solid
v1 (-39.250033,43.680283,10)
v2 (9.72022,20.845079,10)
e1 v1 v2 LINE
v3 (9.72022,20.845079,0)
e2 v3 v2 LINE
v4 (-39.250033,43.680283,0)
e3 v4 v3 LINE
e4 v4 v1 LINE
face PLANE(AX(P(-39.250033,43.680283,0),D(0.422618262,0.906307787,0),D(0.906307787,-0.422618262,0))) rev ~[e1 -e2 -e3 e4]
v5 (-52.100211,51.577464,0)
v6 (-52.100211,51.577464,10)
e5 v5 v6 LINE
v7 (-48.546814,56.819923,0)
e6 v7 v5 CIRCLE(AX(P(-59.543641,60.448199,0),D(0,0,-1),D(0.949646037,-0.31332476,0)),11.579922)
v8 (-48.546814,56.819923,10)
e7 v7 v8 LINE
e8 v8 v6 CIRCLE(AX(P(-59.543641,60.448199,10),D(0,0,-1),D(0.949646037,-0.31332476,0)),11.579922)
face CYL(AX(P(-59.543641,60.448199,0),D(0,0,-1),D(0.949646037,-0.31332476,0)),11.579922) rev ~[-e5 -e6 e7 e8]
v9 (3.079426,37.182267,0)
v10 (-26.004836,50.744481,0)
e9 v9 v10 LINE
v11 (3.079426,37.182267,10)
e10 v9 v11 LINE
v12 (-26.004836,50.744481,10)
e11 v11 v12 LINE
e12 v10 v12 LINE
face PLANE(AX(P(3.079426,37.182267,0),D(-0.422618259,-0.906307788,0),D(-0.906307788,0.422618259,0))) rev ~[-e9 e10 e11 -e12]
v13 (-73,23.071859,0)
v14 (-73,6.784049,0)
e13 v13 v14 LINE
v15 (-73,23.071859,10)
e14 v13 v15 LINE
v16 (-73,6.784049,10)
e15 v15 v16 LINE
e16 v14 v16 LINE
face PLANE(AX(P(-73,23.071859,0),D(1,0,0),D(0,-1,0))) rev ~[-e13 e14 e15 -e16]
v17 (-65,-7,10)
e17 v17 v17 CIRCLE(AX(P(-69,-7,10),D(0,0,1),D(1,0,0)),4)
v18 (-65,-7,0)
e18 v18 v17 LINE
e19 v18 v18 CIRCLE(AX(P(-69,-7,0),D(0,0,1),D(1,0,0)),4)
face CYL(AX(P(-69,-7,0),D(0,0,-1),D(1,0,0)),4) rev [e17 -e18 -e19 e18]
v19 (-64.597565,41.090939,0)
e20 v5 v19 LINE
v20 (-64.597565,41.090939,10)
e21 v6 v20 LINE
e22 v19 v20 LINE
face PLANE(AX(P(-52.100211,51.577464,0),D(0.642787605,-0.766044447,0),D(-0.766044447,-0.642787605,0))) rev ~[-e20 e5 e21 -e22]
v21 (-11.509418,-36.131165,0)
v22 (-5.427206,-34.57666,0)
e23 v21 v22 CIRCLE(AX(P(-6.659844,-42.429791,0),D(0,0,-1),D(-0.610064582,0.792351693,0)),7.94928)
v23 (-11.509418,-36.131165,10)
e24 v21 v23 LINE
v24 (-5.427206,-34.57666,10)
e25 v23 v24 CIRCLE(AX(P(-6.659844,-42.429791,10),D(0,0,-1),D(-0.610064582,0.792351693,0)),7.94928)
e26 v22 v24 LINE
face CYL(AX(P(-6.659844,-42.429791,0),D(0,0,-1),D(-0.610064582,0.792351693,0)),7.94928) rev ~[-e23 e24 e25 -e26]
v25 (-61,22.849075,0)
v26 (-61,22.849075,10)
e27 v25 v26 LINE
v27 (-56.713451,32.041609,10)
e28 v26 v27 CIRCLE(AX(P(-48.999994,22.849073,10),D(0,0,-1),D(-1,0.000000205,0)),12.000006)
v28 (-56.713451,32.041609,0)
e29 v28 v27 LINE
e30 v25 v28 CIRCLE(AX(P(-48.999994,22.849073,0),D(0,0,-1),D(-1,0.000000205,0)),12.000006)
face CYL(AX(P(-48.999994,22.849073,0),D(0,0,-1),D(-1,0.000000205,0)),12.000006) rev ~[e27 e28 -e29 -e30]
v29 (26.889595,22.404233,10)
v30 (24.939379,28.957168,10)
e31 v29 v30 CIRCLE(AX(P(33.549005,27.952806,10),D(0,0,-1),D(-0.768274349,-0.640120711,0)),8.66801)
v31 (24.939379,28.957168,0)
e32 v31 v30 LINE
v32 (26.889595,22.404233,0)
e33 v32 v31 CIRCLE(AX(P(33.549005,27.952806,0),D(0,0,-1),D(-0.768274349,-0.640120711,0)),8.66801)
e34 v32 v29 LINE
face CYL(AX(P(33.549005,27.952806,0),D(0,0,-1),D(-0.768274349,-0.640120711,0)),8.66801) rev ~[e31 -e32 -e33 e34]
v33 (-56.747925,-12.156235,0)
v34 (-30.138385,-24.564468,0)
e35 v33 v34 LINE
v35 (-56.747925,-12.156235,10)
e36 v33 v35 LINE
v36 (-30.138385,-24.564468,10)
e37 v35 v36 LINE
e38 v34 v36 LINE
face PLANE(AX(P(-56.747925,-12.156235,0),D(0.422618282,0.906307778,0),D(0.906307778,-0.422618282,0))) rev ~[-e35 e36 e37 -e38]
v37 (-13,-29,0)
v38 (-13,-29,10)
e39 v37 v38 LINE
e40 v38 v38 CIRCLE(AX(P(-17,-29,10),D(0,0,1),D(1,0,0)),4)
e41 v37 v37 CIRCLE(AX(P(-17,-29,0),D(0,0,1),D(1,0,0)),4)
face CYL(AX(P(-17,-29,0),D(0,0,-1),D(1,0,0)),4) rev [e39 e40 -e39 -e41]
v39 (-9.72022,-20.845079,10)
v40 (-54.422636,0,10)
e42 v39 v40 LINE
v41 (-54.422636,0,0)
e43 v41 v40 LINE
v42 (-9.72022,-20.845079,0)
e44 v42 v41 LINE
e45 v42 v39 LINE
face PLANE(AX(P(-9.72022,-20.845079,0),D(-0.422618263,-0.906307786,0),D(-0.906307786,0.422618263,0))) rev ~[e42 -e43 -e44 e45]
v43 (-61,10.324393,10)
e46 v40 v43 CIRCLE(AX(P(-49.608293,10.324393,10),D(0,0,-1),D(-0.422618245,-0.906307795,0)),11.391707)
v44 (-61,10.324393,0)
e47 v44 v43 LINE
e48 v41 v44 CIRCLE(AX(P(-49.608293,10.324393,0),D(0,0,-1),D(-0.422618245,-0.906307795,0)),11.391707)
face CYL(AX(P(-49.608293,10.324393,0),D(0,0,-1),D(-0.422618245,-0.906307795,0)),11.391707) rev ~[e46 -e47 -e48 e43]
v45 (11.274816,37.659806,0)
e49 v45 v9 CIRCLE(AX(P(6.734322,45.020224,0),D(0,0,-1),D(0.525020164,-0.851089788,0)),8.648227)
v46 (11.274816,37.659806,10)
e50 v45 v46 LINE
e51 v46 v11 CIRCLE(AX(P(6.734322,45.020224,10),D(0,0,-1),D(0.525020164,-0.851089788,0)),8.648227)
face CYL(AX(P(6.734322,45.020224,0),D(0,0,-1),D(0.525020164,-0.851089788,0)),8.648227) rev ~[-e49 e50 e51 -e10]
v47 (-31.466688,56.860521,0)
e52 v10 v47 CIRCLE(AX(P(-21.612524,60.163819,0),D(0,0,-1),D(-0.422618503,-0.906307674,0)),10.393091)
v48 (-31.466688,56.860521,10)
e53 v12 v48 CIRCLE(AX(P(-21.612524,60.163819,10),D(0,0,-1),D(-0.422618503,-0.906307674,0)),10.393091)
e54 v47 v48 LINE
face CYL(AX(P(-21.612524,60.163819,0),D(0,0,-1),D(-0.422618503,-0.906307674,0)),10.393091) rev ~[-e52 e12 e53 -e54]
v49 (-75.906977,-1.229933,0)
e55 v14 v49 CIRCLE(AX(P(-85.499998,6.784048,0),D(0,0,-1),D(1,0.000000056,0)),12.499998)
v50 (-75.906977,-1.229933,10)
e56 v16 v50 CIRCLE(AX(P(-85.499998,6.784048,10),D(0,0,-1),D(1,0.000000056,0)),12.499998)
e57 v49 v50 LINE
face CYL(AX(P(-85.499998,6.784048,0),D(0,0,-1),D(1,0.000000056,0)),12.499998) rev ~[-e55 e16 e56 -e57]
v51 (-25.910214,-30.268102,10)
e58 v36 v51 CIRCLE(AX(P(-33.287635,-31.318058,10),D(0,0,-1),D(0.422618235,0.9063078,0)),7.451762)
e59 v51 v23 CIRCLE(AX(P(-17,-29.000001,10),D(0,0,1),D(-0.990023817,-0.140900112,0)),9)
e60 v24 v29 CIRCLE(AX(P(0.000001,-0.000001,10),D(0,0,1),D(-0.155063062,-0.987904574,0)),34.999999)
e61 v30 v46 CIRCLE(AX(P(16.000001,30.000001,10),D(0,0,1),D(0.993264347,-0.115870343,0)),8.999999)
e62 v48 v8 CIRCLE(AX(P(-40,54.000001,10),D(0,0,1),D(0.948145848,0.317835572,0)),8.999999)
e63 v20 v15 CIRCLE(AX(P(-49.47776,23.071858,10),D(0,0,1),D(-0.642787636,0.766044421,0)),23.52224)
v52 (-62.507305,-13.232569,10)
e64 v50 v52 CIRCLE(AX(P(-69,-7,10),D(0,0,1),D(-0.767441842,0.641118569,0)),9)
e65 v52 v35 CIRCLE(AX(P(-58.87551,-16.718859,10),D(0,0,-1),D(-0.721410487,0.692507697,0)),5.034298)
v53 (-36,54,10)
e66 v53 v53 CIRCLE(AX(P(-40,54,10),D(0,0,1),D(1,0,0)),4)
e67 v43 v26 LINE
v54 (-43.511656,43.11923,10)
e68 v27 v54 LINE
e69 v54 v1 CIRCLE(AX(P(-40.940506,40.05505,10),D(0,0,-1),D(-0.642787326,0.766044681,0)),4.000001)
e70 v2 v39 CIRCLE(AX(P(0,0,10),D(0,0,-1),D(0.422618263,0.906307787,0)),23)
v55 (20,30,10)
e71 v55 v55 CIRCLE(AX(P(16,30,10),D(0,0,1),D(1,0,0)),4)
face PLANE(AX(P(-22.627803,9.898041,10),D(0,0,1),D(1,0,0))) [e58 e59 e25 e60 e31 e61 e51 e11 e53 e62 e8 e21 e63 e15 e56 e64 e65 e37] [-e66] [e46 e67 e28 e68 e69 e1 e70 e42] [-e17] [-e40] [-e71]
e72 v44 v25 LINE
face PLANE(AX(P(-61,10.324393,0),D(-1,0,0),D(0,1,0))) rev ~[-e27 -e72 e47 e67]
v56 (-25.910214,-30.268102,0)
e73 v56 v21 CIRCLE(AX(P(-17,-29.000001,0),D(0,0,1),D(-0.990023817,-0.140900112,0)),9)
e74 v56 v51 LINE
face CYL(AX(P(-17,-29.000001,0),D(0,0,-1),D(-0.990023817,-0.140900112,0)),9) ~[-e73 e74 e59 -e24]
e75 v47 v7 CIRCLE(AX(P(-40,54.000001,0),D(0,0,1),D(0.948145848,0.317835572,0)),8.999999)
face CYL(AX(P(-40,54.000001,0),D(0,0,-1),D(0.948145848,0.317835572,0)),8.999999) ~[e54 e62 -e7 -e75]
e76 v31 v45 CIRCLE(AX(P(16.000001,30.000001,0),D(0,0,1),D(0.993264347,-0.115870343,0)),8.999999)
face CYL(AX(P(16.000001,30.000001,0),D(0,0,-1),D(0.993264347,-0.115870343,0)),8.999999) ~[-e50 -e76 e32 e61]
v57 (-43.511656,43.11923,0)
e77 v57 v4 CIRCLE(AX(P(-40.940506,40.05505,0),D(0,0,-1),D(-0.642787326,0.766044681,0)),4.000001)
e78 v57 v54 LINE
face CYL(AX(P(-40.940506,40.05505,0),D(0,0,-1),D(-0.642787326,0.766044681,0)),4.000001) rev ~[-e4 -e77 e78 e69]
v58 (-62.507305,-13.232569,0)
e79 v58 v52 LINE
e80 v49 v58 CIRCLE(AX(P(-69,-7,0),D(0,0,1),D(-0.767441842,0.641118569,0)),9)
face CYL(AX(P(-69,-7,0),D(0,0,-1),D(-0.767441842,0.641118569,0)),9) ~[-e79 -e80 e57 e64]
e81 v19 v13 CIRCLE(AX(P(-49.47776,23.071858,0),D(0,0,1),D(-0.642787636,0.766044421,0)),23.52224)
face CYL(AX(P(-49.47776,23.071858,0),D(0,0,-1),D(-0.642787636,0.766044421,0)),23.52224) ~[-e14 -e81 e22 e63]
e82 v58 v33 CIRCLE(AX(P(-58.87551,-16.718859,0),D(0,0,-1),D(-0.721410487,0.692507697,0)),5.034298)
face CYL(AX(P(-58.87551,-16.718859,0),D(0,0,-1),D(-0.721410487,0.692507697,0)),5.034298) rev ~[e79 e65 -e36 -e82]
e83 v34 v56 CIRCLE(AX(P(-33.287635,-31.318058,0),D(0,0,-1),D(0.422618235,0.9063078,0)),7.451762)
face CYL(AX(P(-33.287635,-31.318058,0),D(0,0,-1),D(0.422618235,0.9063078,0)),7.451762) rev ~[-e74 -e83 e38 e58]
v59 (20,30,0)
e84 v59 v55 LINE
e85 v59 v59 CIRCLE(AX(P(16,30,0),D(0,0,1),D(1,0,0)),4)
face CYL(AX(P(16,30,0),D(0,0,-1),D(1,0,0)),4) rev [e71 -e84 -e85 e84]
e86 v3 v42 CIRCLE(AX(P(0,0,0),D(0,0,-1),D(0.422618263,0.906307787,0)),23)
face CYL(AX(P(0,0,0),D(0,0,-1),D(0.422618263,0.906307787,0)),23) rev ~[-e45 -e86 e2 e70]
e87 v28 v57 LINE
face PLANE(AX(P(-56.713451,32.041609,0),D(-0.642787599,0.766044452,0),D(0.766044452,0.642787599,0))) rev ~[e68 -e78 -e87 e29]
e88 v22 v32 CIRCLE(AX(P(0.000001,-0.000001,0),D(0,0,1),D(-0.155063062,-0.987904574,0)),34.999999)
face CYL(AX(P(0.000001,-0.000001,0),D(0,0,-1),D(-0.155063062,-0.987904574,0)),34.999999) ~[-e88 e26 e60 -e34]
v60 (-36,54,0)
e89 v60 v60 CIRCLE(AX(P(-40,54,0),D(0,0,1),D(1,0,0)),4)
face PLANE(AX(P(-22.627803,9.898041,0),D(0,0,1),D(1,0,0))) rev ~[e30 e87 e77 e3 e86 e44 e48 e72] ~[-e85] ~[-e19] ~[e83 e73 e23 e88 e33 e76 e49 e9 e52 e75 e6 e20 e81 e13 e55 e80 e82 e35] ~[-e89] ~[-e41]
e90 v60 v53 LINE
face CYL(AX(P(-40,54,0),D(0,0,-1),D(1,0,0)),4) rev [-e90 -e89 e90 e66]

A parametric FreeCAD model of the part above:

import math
import FreeCAD as App
import Part
import Sketcher
Q = App.Units.Quantity

doc = App.newDocument("Part")
params = doc.addObject("Spreadsheet::Sheet", "Params")
for row, (alias, value) in enumerate([
    ("sketch1_diameter", "8 mm"),
    ("sketch1_radius", "8.999999 mm"),
    ("sketch1_radius2", "34.999999 mm"),
    ("sketch1_radius3", "23 mm"),
    ("pad1_length", "10 mm"),
], start=1):
    params.set(f"A{row}", alias)
    params.set(f"B{row}", "=" + value)
    params.setAlias(f"B{row}", alias)

body = doc.addObject("PartDesign::Body", "Body")

# Sketch on XY plane
sketch1 = body.newObject("Sketcher::SketchObject", "Sketch")
sketch1.AttachmentSupport = (doc.getObject("XY_Plane"), [""])
sketch1.MapMode = "FlatFace"
sketch1.addGeometry(Part.ArcOfCircle(Part.Circle(App.Vector(-21.6, 60.2, 0), App.Vector(0, 0, 1), 10.4), math.radians(-161), math.radians(-115)), False)
sketch1.addGeometry(Part.ArcOfCircle(Part.Circle(App.Vector(-40, 54, 0), App.Vector(0, 0, 1), 9), math.radians(19), math.radians(162)), False)
sketch1.addGeometry(Part.ArcOfCircle(Part.Circle(App.Vector(-59.5, 60.4, 0), App.Vector(0, 0, 1), 11.6), math.radians(-50), math.radians(-18)), False)
sketch1.addGeometry(Part.LineSegment(App.Vector(-52.1, 51.6, 0), App.Vector(-64.6, 41.1, 0)), False)
sketch1.addGeometry(Part.ArcOfCircle(Part.Circle(App.Vector(-49.5, 23.1, 0), App.Vector(0, 0, 1), 23.5), math.radians(130), math.radians(180)), False)
sketch1.addGeometry(Part.LineSegment(App.Vector(-73, 23.1, 0), App.Vector(-73, 6.8, 0)), False)
sketch1.addGeometry(Part.ArcOfCircle(Part.Circle(App.Vector(-85.5, 6.8, 0), App.Vector(0, 0, 1), 12.5), math.radians(-40), math.radians(0)), False)
sketch1.addGeometry(Part.ArcOfCircle(Part.Circle(App.Vector(-69, -7, 0), App.Vector(0, 0, 1), 9), math.radians(140), math.radians(316)), False)
sketch1.addGeometry(Part.ArcOfCircle(Part.Circle(App.Vector(-58.9, -16.7, 0), App.Vector(0, 0, 1), 5), math.radians(65), math.radians(136)), False)
sketch1.addGeometry(Part.LineSegment(App.Vector(-56.7, -12.2, 0), App.Vector(-30.1, -24.6, 0)), False)
sketch1.addGeometry(Part.ArcOfCircle(Part.Circle(App.Vector(-33.3, -31.3, 0), App.Vector(0, 0, 1), 7.5), math.radians(8), math.radians(65)), False)
sketch1.addGeometry(Part.ArcOfCircle(Part.Circle(App.Vector(-17, -29, 0), App.Vector(0, 0, 1), 9), math.radians(-172), math.radians(-52)), False)
sketch1.addGeometry(Part.ArcOfCircle(Part.Circle(App.Vector(-6.7, -42.4, 0), App.Vector(0, 0, 1), 7.9), math.radians(81), math.radians(128)), False)
sketch1.addGeometry(Part.ArcOfCircle(Part.Circle(App.Vector(0, 0, 0), App.Vector(0, 0, 1), 35), math.radians(-99), math.radians(40)), False)
sketch1.addGeometry(Part.ArcOfCircle(Part.Circle(App.Vector(33.5, 28, 0), App.Vector(0, 0, 1), 8.7), math.radians(173), math.radians(220)), False)
sketch1.addGeometry(Part.ArcOfCircle(Part.Circle(App.Vector(16, 30, 0), App.Vector(0, 0, 1), 9), math.radians(-7), math.radians(122)), False)
sketch1.addGeometry(Part.ArcOfCircle(Part.Circle(App.Vector(6.7, 45, 0), App.Vector(0, 0, 1), 8.6), math.radians(-115), math.radians(-58)), False)
sketch1.addGeometry(Part.LineSegment(App.Vector(3.1, 37.2, 0), App.Vector(-26, 50.7, 0)), False)
sketch1.addGeometry(Part.Circle(App.Vector(-69, -7, 0), App.Vector(0, 0, 1), 4), False)
sketch1.addGeometry(Part.Circle(App.Vector(-17, -29, 0), App.Vector(0, 0, 1), 4), False)
sketch1.addGeometry(Part.LineSegment(App.Vector(-39.3, 43.7, 0), App.Vector(9.7, 20.8, 0)), False)
sketch1.addGeometry(Part.ArcOfCircle(Part.Circle(App.Vector(0, 0, 0), App.Vector(0, 0, 1), 23), math.radians(-115), math.radians(65)), False)
sketch1.addGeometry(Part.LineSegment(App.Vector(-9.7, -20.8, 0), App.Vector(-54.4, 0, 0)), False)
sketch1.addGeometry(Part.ArcOfCircle(Part.Circle(App.Vector(-49.6, 10.3, 0), App.Vector(0, 0, 1), 11.4), math.radians(-180), math.radians(-115)), False)
sketch1.addGeometry(Part.LineSegment(App.Vector(-61, 10.3, 0), App.Vector(-61, 22.8, 0)), False)
sketch1.addGeometry(Part.ArcOfCircle(Part.Circle(App.Vector(-49, 22.8, 0), App.Vector(0, 0, 1), 12), math.radians(130), math.radians(180)), False)
sketch1.addGeometry(Part.LineSegment(App.Vector(-56.7, 32, 0), App.Vector(-43.5, 43.1, 0)), False)
sketch1.addGeometry(Part.ArcOfCircle(Part.Circle(App.Vector(-40.9, 40.1, 0), App.Vector(0, 0, 1), 4), math.radians(65), math.radians(130)), False)
sketch1.addGeometry(Part.Circle(App.Vector(-40, 54, 0), App.Vector(0, 0, 1), 4), False)
sketch1.addGeometry(Part.Circle(App.Vector(16, 30, 0), App.Vector(0, 0, 1), 4), False)
sketch1.addConstraint(Sketcher.Constraint("Tangent", 0, 1, 1, 1))
sketch1.addConstraint(Sketcher.Constraint("Tangent", 1, 2, 2, 2))
sketch1.addConstraint(Sketcher.Constraint("Tangent", 2, 1, 3, 1))
sketch1.addConstraint(Sketcher.Constraint("Tangent", 3, 2, 4, 1))
sketch1.addConstraint(Sketcher.Constraint("Tangent", 4, 2, 5, 1))
sketch1.addConstraint(Sketcher.Constraint("Tangent", 5, 2, 6, 2))
sketch1.addConstraint(Sketcher.Constraint("Tangent", 6, 1, 7, 1))
sketch1.addConstraint(Sketcher.Constraint("Tangent", 7, 2, 8, 2))
sketch1.addConstraint(Sketcher.Constraint("Tangent", 8, 1, 9, 1))
sketch1.addConstraint(Sketcher.Constraint("Tangent", 9, 2, 10, 2))
sketch1.addConstraint(Sketcher.Constraint("Tangent", 10, 1, 11, 1))
sketch1.addConstraint(Sketcher.Constraint("Tangent", 11, 2, 12, 2))
sketch1.addConstraint(Sketcher.Constraint("Tangent", 12, 1, 13, 1))
sketch1.addConstraint(Sketcher.Constraint("Tangent", 13, 2, 14, 2))
sketch1.addConstraint(Sketcher.Constraint("Tangent", 14, 1, 15, 1))
sketch1.addConstraint(Sketcher.Constraint("Tangent", 15, 2, 16, 2))
sketch1.addConstraint(Sketcher.Constraint("Tangent", 16, 1, 17, 1))
sketch1.addConstraint(Sketcher.Constraint("Tangent", 17, 2, 0, 2))
sketch1.addConstraint(Sketcher.Constraint("Tangent", 20, 2, 21, 2))
sketch1.addConstraint(Sketcher.Constraint("Tangent", 21, 1, 22, 1))
sketch1.addConstraint(Sketcher.Constraint("Tangent", 22, 2, 23, 2))
sketch1.addConstraint(Sketcher.Constraint("Tangent", 23, 1, 24, 1))
sketch1.addConstraint(Sketcher.Constraint("Tangent", 24, 2, 25, 2))
sketch1.addConstraint(Sketcher.Constraint("Tangent", 25, 1, 26, 1))
sketch1.addConstraint(Sketcher.Constraint("Tangent", 26, 2, 27, 2))
sketch1.addConstraint(Sketcher.Constraint("Tangent", 27, 1, 20, 1))
sketch1.addConstraint(Sketcher.Constraint("Vertical", 5))
sketch1.addConstraint(Sketcher.Constraint("Vertical", 24))
sketch1.addConstraint(Sketcher.Constraint("Coincident", 13, 3, -1, 1))
sketch1.addConstraint(Sketcher.Constraint("Coincident", 21, 3, -1, 1))
sketch1.addConstraint(Sketcher.Constraint("Coincident", 18, 3, 7, 3))
sketch1.addConstraint(Sketcher.Constraint("Coincident", 19, 3, 11, 3))
sketch1.addConstraint(Sketcher.Constraint("Coincident", 28, 3, 1, 3))
sketch1.addConstraint(Sketcher.Constraint("Coincident", 29, 3, 15, 3))
sketch1.addConstraint(Sketcher.Constraint("Equal", 1, 7))
sketch1.addConstraint(Sketcher.Constraint("Equal", 7, 11))
sketch1.addConstraint(Sketcher.Constraint("Equal", 11, 15))
sketch1.addConstraint(Sketcher.Constraint("Equal", 18, 19))
sketch1.addConstraint(Sketcher.Constraint("Equal", 19, 27))
sketch1.addConstraint(Sketcher.Constraint("Equal", 27, 28))
sketch1.addConstraint(Sketcher.Constraint("Equal", 28, 29))
sketch1.addConstraint(Sketcher.Constraint("PointOnObject", 22, 2, -1))
sketch1.addConstraint(Sketcher.Constraint("Parallel", 9, 17))
sketch1.addConstraint(Sketcher.Constraint("Parallel", 17, 20))
sketch1.addConstraint(Sketcher.Constraint("Parallel", 20, 22))
sketch1.addConstraint(Sketcher.Constraint("Parallel", 3, 26))
sketch1.addConstraint(Sketcher.Constraint("Diameter", 18, Q("8 mm")))
sketch1.addConstraint(Sketcher.Constraint("Radius", 1, Q("8.999999 mm")))
sketch1.addConstraint(Sketcher.Constraint("Radius", 13, Q("34.999999 mm")))
sketch1.addConstraint(Sketcher.Constraint("Radius", 21, Q("23 mm")))
sketch1.addConstraint(Sketcher.Constraint("Angle", 3, Q("-140 deg")))
sketch1.addConstraint(Sketcher.Constraint("Angle", 9, Q("-25.000001 deg")))
sketch1.addConstraint(Sketcher.Constraint("DistanceX", 1, 3, -1, 1, Q("40 mm")))
sketch1.addConstraint(Sketcher.Constraint("DistanceY", -1, 1, 1, 3, Q("54.000001 mm")))
sketch1.addConstraint(Sketcher.Constraint("DistanceX", 7, 3, -1, 1, Q("69 mm")))
sketch1.addConstraint(Sketcher.Constraint("DistanceY", 7, 3, -1, 1, Q("7 mm")))
sketch1.addConstraint(Sketcher.Constraint("DistanceX", 11, 3, -1, 1, Q("17 mm")))
sketch1.addConstraint(Sketcher.Constraint("DistanceY", 11, 3, -1, 1, Q("29.000001 mm")))
sketch1.addConstraint(Sketcher.Constraint("DistanceX", -1, 1, 15, 3, Q("16.000001 mm")))
sketch1.addConstraint(Sketcher.Constraint("DistanceY", -1, 1, 15, 3, Q("30.000001 mm")))
sketch1.addConstraint(Sketcher.Constraint("DistanceX", 4, 2, -1, 1, Q("73 mm")))
sketch1.addConstraint(Sketcher.Constraint("DistanceX", 23, 1, -1, 1, Q("61 mm")))
sketch1.addConstraint(Sketcher.Constraint("Radius", 0, Q("10.393091 mm")))
sketch1.addConstraint(Sketcher.Constraint("Radius", 4, Q("23.52224 mm")))
sketch1.addConstraint(Sketcher.Constraint("Radius", 10, Q("7.451762 mm")))
sketch1.addConstraint(Sketcher.Constraint("Radius", 12, Q("7.94928 mm")))
sketch1.addConstraint(Sketcher.Constraint("Radius", 14, Q("8.66801 mm")))
sketch1.addConstraint(Sketcher.Constraint("Radius", 2, Q("11.579922 mm")))
sketch1.addConstraint(Sketcher.Constraint("Radius", 6, Q("12.499998 mm")))
sketch1.addConstraint(Sketcher.Constraint("Radius", 8, Q("5.034298 mm")))
sketch1.addConstraint(Sketcher.Constraint("Radius", 16, Q("8.648227 mm")))
sketch1.addConstraint(Sketcher.Constraint("Radius", 25, Q("12.000006 mm")))
sketch1.addConstraint(Sketcher.Constraint("DistanceY", 5, 2, 5, 1, Q("16.28781 mm")))
sketch1.addConstraint(Sketcher.Constraint("DistanceY", 24, 1, 24, 2, Q("12.524682 mm")))
sketch1.addConstraint(Sketcher.Constraint("DistanceY", 10, 3, 8, 3, Q("14.599199 mm")))
sketch1.addConstraint(Sketcher.Constraint("DistanceY", 1, 2, 0, 1, Q("0.040598 mm")))
sketch1.setExpression("Constraints[46]", "Params.sketch1_diameter")
sketch1.setExpression("Constraints[47]", "Params.sketch1_radius")
sketch1.setExpression("Constraints[48]", "Params.sketch1_radius2")
sketch1.setExpression("Constraints[49]", "Params.sketch1_radius3")
pad1 = body.newObject("PartDesign::Pad", "Pad")
pad1.Profile = sketch1
pad1.setExpression("Length", "Params.pad1_length")

doc.recompute()
